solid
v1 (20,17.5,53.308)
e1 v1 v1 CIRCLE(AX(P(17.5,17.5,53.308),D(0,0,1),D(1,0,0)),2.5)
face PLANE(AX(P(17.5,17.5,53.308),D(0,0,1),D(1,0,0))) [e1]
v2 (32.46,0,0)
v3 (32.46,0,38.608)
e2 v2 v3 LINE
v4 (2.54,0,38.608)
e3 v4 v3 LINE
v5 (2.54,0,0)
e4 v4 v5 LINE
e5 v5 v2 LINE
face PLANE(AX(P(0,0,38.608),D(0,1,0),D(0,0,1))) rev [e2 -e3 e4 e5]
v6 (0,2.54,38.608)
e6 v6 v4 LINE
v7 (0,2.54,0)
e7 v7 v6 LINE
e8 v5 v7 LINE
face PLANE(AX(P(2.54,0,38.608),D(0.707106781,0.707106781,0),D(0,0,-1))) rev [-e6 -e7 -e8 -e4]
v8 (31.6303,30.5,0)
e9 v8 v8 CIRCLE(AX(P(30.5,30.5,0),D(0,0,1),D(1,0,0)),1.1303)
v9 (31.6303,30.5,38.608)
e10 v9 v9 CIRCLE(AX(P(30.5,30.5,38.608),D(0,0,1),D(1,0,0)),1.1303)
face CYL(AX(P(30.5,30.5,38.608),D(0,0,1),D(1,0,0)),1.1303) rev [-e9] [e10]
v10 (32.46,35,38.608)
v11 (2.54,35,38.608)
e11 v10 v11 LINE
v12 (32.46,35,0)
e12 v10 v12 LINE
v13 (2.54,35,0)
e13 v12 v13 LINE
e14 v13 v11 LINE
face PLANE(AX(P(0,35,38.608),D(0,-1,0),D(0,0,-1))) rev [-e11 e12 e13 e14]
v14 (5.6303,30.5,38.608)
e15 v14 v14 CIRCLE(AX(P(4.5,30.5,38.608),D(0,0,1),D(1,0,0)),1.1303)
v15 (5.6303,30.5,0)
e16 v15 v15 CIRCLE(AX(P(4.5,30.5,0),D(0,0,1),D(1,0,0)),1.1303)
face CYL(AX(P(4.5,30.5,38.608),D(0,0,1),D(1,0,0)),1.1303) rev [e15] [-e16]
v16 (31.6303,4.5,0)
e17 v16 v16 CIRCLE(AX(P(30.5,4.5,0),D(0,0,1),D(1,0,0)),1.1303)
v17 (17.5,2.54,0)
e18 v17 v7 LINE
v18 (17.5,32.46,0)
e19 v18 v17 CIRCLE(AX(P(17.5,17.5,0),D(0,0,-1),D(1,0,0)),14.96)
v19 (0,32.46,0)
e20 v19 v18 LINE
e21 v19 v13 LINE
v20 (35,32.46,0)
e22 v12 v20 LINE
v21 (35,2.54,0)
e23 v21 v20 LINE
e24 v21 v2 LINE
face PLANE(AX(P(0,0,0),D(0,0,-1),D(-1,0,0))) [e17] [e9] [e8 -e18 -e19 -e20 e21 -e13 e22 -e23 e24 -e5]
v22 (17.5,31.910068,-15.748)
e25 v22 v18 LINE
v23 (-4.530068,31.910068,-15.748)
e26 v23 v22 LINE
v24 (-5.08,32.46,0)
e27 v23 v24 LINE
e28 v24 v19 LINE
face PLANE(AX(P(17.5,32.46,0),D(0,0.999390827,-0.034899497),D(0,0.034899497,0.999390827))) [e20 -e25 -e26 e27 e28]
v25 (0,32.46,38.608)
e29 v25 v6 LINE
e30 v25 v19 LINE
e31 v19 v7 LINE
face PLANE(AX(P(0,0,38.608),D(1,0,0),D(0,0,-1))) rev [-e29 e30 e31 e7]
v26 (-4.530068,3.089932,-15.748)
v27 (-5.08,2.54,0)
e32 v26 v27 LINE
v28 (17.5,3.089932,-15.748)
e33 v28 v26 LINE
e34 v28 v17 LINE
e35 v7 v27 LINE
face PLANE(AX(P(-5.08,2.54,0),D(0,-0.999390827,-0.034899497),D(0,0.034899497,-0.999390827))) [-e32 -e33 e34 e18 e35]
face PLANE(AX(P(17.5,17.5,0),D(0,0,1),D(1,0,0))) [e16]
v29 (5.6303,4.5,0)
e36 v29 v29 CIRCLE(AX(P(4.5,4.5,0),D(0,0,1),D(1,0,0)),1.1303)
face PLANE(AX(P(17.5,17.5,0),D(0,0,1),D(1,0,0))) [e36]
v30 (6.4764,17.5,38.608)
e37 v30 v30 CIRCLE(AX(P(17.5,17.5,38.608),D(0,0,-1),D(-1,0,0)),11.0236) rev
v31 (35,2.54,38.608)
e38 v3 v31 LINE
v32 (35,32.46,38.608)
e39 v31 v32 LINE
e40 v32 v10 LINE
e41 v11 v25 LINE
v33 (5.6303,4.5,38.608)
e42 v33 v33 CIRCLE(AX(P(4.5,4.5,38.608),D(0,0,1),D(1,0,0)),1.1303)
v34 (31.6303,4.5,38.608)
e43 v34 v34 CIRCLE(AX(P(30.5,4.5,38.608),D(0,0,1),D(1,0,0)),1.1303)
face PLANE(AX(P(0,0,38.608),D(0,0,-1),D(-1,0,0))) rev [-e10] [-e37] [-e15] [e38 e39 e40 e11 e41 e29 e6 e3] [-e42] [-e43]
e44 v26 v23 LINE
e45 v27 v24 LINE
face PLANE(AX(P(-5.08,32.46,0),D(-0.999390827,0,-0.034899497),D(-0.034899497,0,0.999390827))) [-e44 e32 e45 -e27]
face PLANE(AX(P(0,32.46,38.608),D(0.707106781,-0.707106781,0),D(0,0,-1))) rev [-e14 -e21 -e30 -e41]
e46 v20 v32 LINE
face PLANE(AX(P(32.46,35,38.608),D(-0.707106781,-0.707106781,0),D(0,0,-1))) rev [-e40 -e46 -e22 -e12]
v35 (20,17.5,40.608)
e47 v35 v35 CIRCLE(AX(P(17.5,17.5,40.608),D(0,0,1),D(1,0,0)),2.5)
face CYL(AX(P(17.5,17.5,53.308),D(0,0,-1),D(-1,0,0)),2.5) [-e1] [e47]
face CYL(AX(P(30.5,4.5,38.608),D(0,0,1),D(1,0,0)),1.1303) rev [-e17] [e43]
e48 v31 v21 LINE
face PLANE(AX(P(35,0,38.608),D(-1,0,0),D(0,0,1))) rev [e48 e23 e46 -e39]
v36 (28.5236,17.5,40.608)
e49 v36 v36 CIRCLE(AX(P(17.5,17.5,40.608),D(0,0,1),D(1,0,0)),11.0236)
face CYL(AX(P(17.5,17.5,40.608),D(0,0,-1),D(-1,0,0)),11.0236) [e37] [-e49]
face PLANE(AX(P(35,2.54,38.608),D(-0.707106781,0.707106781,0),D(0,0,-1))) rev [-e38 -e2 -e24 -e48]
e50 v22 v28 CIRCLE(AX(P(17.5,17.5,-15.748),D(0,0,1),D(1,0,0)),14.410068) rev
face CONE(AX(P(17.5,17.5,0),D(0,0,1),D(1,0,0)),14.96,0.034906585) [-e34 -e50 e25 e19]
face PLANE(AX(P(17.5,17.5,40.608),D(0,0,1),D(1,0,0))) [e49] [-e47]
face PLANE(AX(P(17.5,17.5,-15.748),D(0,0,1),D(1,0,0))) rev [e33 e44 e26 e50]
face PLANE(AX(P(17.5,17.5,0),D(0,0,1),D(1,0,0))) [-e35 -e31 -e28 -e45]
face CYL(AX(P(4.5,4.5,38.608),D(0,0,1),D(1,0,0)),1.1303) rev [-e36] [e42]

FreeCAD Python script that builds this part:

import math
import FreeCAD as App
import Part
import Sketcher

V = App.Vector
Q = App.Units.Quantity


def edges_at(feature, points):
    """Names of the edges that pass closest to the given points."""
    edges = feature.Shape.Edges
    near = lambda p: min(range(len(edges)), key=lambda i: edges[i].distToShape(Part.Vertex(*p))[0])
    return sorted({f"Edge{near(p) + 1}" for p in points})

doc = App.newDocument("Part")
params = doc.addObject("Spreadsheet::Sheet", "Params")
for row, (alias, value) in enumerate([
    ("pad1_length", "1.52 in"),
    ("chamfer_size", "0.1 in"),
    ("sketch2_diameter", "0.868 in"),
    ("pad2_length", "2 mm"),
    ("pad3_length", "0.5 in"),
    ("sketch4_diameter", "0.089 in"),
    ("hole_diameter", "0.089 in"),
    ("pad4_length", "0.62 in"),
    ("pad4_taper", "-2 deg"),
], start=1):
    params.set(f"A{row}", alias)
    params.set(f"B{row}", "=" + value)
    params.setAlias(f"B{row}", alias)

body = doc.addObject("PartDesign::Body", "Body")

sketch1 = body.newObject("Sketcher::SketchObject", "Sketch")
sketch1.AttachmentSupport = (doc.getObject("XY_Plane"), [""])
sketch1.MapMode = "FlatFace"
sketch1.addGeometry([
    Part.LineSegment(V(0, 35, 0), V(0, 0, 0)),
    Part.LineSegment(V(0, 0, 0), V(35, 0, 0)),
    Part.LineSegment(V(35, 0, 0), V(35, 35, 0)),
    Part.LineSegment(V(35, 35, 0), V(0, 35, 0)),
], False)
sketch1.addConstraint([
    Sketcher.Constraint("Coincident", 0, 2, 1, 1),
    Sketcher.Constraint("Coincident", 1, 2, 2, 1),
    Sketcher.Constraint("Coincident", 2, 2, 3, 1),
    Sketcher.Constraint("Coincident", 3, 2, 0, 1),
    Sketcher.Constraint("Vertical", 0),
    Sketcher.Constraint("Horizontal", 1),
    Sketcher.Constraint("Vertical", 2),
    Sketcher.Constraint("Horizontal", 3),
    Sketcher.Constraint("Coincident", 0, 2, -1, 1),
    Sketcher.Constraint("Equal", 3, 0),
    Sketcher.Constraint("DistanceX", 1, 1, 1, 2, 35.0),
])
pad1 = body.newObject("PartDesign::Pad", "Pad")
pad1.Profile = sketch1
pad1.setExpression("Length", "Params.pad1_length")
doc.recompute()

chamfer = body.newObject("PartDesign::Chamfer", "Chamfer")
chamfer.Base = (pad1, edges_at(pad1, [
    (0, 35, 19.304),
    (35, 35, 19.304),
    (35, 0, 19.304),
    (0, 0, 19.304),
]))
chamfer.setExpression("Size", "Params.chamfer_size")

sketch2 = body.newObject("Sketcher::SketchObject", "Sketch001")
sketch2.AttachmentSupport = (doc.getObject("XY_Plane"), [""])
sketch2.MapMode = "FlatFace"
sketch2.AttachmentOffset = App.Placement(V(0, 0, 1.52 * 25.4), App.Rotation())
sketch2.addGeometry(Part.Circle(V(17.5, 17.5, 0), V(0, 0, 1), 11.0236), False)
sketch2.addConstraint([
    Sketcher.Constraint("Diameter", 0, Q("0.868 in")),
    Sketcher.Constraint("DistanceX", -1, 1, 0, 3, 17.5),
    Sketcher.Constraint("DistanceY", -1, 1, 0, 3, 17.5),
])
sketch2.setExpression("Constraints[0]", "Params.sketch2_diameter")
pad2 = body.newObject("PartDesign::Pad", "Pad001")
pad2.Profile = sketch2
pad2.setExpression("Length", "Params.pad2_length")

sketch3 = body.newObject("Sketcher::SketchObject", "Sketch002")
sketch3.AttachmentSupport = (doc.getObject("XY_Plane"), [""])
sketch3.MapMode = "FlatFace"
sketch3.AttachmentOffset = App.Placement(V(0, 0, 40.608), App.Rotation())
sketch3.addGeometry(Part.Circle(V(17.5, 17.5, 0), V(0, 0, 1), 2.5), False)
sketch3.addConstraint([
    Sketcher.Constraint("Diameter", 0, 5.0),
    Sketcher.Constraint("DistanceX", -1, 1, 0, 3, 17.5),
    Sketcher.Constraint("DistanceY", -1, 1, 0, 3, 17.5),
])
pad3 = body.newObject("PartDesign::Pad", "Pad002")
pad3.Profile = sketch3
pad3.setExpression("Length", "Params.pad3_length")

sketch4 = body.newObject("Sketcher::SketchObject", "Sketch003")
sketch4.AttachmentSupport = (doc.getObject("XY_Plane"), [""])
sketch4.MapMode = "FlatFace"
sketch4.AttachmentOffset = App.Placement(V(0, 0, 1.52 * 25.4), App.Rotation())
sketch4.addGeometry([
    Part.Circle(V(4.5, 30.5, 0), V(0, 0, 1), 1.1303),
    Part.Circle(V(30.5, 4.5, 0), V(0, 0, 1), 1.1303),
    Part.Circle(V(4.5, 4.5, 0), V(0, 0, 1), 1.1303),
    Part.Circle(V(30.5, 30.5, 0), V(0, 0, 1), 1.1303),
], False)
sketch4.addConstraint([
    Sketcher.Constraint("Equal", 0, 1),
    Sketcher.Constraint("Equal", 1, 2),
    Sketcher.Constraint("Equal", 2, 3),
    Sketcher.Constraint("Horizontal", 1, 3, 2, 3),
    Sketcher.Constraint("Horizontal", 0, 3, 3, 3),
    Sketcher.Constraint("Vertical", 0, 3, 2, 3),
    Sketcher.Constraint("Vertical", 1, 3, 3, 3),
    Sketcher.Constraint("Diameter", 0, Q("0.089 in")),
    Sketcher.Constraint("DistanceX", -1, 1, 0, 3, 4.5),
    Sketcher.Constraint("DistanceY", -1, 1, 0, 3, 30.5),
    Sketcher.Constraint("DistanceX", -1, 1, 1, 3, 30.5),
    Sketcher.Constraint("DistanceY", -1, 1, 1, 3, 4.5),
])
sketch4.setExpression("Constraints[7]", "Params.sketch4_diameter")
doc.recompute()
hole = body.newObject("PartDesign::Hole", "Hole")
hole.Profile = sketch4
hole.ThreadType = "None"
hole.setExpression("Diameter", "Params.hole_diameter")
hole.DepthType = "ThroughAll"

sketch5 = body.newObject("Sketcher::SketchObject", "Sketch004")
sketch5.AttachmentSupport = (doc.getObject("XY_Plane"), [""])
sketch5.MapMode = "FlatFace"
sketch5.addGeometry([
    Part.LineSegment(V(-5.08, 2.54, 0), V(-5.08, 32.46, 0)),
    Part.LineSegment(V(-5.08, 32.46, 0), V(17.5, 32.46, 0)),
    Part.ArcOfCircle(Part.Circle(V(17.5, 17.5, 0), V(0, 0, 1), 14.96), math.radians(-90), math.radians(90)),
    Part.LineSegment(V(17.5, 2.54, 0), V(-5.08, 2.54, 0)),
], False)
sketch5.addConstraint([
    Sketcher.Constraint("Coincident", 0, 2, 1, 1),
    Sketcher.Constraint("Tangent", 1, 2, 2, 2),
    Sketcher.Constraint("Tangent", 2, 1, 3, 1),
    Sketcher.Constraint("Coincident", 3, 2, 0, 1),
    Sketcher.Constraint("Vertical", 0),
    Sketcher.Constraint("Horizontal", 1),
    Sketcher.Constraint("Horizontal", 3),
    Sketcher.Constraint("DistanceX", 0, 2, -1, 1, Q("0.2 in")),
    Sketcher.Constraint("DistanceY", -1, 1, 2, 1, Q("0.1 in")),
    Sketcher.Constraint("Radius", 2, 14.96),
    Sketcher.Constraint("DistanceX", 1, 1, 1, 2, 22.58),
])
pad4 = body.newObject("PartDesign::Pad", "Pad003")
pad4.Profile = sketch5
pad4.setExpression("Length", "Params.pad4_length")
pad4.Reversed = True
pad4.setExpression("TaperAngle", "Params.pad4_taper")

doc.recompute()
